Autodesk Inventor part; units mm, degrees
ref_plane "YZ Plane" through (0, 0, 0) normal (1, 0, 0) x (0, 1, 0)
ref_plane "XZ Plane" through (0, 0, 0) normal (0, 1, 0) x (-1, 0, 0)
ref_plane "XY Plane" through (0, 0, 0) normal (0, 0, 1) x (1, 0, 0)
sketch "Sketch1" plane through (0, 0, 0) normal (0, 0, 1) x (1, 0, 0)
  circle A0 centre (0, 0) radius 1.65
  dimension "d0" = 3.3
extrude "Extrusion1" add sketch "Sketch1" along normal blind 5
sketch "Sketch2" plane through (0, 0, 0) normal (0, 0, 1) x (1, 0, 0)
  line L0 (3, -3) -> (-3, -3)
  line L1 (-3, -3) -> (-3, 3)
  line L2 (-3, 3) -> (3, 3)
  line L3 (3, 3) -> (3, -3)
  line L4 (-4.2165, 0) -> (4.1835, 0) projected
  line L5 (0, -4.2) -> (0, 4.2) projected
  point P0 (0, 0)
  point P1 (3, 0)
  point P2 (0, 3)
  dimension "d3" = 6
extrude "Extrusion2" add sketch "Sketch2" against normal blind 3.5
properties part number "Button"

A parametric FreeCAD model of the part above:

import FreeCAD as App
import Part
import Sketcher
from FreeCAD import Vector


def add_polygon(sketch, points):
    """Adds a closed chain of lines whose ends are joined by coincident constraints."""
    first, n = sketch.GeometryCount, len(points)
    for a, b in zip(points, points[1:] + points[:1]):
        sketch.addGeometry(Part.LineSegment(App.Vector(*a, 0), App.Vector(*b, 0)), False)
    for i in range(n):
        sketch.addConstraint(Sketcher.Constraint("Coincident", first + i, 2, first + (i + 1) % n, 1))

doc = App.newDocument("Part")
params = doc.addObject("Spreadsheet::Sheet", "Params")
for row, (alias, value) in enumerate([
    ("sketch1_diameter", "3.3 mm"),
    ("pad1_length", "5 mm"),
    ("sketch2_width", "6 mm"),
    ("pad2_length", "3.5 mm"),
], start=1):
    params.set(f"A{row}", alias)
    params.set(f"B{row}", "=" + value)
    params.setAlias(f"B{row}", alias)

body = doc.addObject("PartDesign::Body", "Body")

# Sketch on XY plane
sketch1 = body.newObject("Sketcher::SketchObject", "Sketch")
sketch1.AttachmentSupport = (doc.getObject("XY_Plane"), [""])
sketch1.MapMode = "FlatFace"
sketch1.addGeometry(Part.Circle(Vector(0, 0, 0), Vector(0, 0, 1), 1.6), False)
sketch1.addConstraint(Sketcher.Constraint("Coincident", 0, 3, -1, 1))
sketch1.addConstraint(Sketcher.Constraint("Diameter", 0, 3.3))
sketch1.setExpression("Constraints[1]", "Params.sketch1_diameter")
pad1 = body.newObject("PartDesign::Pad", "Pad")
pad1.Profile = sketch1
pad1.setExpression("Length", "Params.pad1_length")

# Sketch on XY plane
sketch2 = body.newObject("Sketcher::SketchObject", "Sketch001")
sketch2.AttachmentSupport = (doc.getObject("XY_Plane"), [""])
sketch2.MapMode = "FlatFace"
add_polygon(sketch2, [(3, -3), (3, 3), (-3, 3), (-3, -3)])  # lines 0-3
sketch2.addConstraint(Sketcher.Constraint("Vertical", 0))
sketch2.addConstraint(Sketcher.Constraint("Horizontal", 1))
sketch2.addConstraint(Sketcher.Constraint("Vertical", 2))
sketch2.addConstraint(Sketcher.Constraint("Horizontal", 3))
sketch2.addConstraint(Sketcher.Constraint("Symmetric", 0, 2, 2, 2, -1, 1))
sketch2.addConstraint(Sketcher.Constraint("Equal", 3, 0))
sketch2.addConstraint(Sketcher.Constraint("DistanceX", 1, 2, 1, 1, 6.0))
sketch2.setExpression("Constraints[10]", "Params.sketch2_width")
pad2 = body.newObject("PartDesign::Pad", "Pad001")
pad2.Profile = sketch2
pad2.setExpression("Length", "Params.pad2_length")
pad2.Reversed = True

doc.recompute()
